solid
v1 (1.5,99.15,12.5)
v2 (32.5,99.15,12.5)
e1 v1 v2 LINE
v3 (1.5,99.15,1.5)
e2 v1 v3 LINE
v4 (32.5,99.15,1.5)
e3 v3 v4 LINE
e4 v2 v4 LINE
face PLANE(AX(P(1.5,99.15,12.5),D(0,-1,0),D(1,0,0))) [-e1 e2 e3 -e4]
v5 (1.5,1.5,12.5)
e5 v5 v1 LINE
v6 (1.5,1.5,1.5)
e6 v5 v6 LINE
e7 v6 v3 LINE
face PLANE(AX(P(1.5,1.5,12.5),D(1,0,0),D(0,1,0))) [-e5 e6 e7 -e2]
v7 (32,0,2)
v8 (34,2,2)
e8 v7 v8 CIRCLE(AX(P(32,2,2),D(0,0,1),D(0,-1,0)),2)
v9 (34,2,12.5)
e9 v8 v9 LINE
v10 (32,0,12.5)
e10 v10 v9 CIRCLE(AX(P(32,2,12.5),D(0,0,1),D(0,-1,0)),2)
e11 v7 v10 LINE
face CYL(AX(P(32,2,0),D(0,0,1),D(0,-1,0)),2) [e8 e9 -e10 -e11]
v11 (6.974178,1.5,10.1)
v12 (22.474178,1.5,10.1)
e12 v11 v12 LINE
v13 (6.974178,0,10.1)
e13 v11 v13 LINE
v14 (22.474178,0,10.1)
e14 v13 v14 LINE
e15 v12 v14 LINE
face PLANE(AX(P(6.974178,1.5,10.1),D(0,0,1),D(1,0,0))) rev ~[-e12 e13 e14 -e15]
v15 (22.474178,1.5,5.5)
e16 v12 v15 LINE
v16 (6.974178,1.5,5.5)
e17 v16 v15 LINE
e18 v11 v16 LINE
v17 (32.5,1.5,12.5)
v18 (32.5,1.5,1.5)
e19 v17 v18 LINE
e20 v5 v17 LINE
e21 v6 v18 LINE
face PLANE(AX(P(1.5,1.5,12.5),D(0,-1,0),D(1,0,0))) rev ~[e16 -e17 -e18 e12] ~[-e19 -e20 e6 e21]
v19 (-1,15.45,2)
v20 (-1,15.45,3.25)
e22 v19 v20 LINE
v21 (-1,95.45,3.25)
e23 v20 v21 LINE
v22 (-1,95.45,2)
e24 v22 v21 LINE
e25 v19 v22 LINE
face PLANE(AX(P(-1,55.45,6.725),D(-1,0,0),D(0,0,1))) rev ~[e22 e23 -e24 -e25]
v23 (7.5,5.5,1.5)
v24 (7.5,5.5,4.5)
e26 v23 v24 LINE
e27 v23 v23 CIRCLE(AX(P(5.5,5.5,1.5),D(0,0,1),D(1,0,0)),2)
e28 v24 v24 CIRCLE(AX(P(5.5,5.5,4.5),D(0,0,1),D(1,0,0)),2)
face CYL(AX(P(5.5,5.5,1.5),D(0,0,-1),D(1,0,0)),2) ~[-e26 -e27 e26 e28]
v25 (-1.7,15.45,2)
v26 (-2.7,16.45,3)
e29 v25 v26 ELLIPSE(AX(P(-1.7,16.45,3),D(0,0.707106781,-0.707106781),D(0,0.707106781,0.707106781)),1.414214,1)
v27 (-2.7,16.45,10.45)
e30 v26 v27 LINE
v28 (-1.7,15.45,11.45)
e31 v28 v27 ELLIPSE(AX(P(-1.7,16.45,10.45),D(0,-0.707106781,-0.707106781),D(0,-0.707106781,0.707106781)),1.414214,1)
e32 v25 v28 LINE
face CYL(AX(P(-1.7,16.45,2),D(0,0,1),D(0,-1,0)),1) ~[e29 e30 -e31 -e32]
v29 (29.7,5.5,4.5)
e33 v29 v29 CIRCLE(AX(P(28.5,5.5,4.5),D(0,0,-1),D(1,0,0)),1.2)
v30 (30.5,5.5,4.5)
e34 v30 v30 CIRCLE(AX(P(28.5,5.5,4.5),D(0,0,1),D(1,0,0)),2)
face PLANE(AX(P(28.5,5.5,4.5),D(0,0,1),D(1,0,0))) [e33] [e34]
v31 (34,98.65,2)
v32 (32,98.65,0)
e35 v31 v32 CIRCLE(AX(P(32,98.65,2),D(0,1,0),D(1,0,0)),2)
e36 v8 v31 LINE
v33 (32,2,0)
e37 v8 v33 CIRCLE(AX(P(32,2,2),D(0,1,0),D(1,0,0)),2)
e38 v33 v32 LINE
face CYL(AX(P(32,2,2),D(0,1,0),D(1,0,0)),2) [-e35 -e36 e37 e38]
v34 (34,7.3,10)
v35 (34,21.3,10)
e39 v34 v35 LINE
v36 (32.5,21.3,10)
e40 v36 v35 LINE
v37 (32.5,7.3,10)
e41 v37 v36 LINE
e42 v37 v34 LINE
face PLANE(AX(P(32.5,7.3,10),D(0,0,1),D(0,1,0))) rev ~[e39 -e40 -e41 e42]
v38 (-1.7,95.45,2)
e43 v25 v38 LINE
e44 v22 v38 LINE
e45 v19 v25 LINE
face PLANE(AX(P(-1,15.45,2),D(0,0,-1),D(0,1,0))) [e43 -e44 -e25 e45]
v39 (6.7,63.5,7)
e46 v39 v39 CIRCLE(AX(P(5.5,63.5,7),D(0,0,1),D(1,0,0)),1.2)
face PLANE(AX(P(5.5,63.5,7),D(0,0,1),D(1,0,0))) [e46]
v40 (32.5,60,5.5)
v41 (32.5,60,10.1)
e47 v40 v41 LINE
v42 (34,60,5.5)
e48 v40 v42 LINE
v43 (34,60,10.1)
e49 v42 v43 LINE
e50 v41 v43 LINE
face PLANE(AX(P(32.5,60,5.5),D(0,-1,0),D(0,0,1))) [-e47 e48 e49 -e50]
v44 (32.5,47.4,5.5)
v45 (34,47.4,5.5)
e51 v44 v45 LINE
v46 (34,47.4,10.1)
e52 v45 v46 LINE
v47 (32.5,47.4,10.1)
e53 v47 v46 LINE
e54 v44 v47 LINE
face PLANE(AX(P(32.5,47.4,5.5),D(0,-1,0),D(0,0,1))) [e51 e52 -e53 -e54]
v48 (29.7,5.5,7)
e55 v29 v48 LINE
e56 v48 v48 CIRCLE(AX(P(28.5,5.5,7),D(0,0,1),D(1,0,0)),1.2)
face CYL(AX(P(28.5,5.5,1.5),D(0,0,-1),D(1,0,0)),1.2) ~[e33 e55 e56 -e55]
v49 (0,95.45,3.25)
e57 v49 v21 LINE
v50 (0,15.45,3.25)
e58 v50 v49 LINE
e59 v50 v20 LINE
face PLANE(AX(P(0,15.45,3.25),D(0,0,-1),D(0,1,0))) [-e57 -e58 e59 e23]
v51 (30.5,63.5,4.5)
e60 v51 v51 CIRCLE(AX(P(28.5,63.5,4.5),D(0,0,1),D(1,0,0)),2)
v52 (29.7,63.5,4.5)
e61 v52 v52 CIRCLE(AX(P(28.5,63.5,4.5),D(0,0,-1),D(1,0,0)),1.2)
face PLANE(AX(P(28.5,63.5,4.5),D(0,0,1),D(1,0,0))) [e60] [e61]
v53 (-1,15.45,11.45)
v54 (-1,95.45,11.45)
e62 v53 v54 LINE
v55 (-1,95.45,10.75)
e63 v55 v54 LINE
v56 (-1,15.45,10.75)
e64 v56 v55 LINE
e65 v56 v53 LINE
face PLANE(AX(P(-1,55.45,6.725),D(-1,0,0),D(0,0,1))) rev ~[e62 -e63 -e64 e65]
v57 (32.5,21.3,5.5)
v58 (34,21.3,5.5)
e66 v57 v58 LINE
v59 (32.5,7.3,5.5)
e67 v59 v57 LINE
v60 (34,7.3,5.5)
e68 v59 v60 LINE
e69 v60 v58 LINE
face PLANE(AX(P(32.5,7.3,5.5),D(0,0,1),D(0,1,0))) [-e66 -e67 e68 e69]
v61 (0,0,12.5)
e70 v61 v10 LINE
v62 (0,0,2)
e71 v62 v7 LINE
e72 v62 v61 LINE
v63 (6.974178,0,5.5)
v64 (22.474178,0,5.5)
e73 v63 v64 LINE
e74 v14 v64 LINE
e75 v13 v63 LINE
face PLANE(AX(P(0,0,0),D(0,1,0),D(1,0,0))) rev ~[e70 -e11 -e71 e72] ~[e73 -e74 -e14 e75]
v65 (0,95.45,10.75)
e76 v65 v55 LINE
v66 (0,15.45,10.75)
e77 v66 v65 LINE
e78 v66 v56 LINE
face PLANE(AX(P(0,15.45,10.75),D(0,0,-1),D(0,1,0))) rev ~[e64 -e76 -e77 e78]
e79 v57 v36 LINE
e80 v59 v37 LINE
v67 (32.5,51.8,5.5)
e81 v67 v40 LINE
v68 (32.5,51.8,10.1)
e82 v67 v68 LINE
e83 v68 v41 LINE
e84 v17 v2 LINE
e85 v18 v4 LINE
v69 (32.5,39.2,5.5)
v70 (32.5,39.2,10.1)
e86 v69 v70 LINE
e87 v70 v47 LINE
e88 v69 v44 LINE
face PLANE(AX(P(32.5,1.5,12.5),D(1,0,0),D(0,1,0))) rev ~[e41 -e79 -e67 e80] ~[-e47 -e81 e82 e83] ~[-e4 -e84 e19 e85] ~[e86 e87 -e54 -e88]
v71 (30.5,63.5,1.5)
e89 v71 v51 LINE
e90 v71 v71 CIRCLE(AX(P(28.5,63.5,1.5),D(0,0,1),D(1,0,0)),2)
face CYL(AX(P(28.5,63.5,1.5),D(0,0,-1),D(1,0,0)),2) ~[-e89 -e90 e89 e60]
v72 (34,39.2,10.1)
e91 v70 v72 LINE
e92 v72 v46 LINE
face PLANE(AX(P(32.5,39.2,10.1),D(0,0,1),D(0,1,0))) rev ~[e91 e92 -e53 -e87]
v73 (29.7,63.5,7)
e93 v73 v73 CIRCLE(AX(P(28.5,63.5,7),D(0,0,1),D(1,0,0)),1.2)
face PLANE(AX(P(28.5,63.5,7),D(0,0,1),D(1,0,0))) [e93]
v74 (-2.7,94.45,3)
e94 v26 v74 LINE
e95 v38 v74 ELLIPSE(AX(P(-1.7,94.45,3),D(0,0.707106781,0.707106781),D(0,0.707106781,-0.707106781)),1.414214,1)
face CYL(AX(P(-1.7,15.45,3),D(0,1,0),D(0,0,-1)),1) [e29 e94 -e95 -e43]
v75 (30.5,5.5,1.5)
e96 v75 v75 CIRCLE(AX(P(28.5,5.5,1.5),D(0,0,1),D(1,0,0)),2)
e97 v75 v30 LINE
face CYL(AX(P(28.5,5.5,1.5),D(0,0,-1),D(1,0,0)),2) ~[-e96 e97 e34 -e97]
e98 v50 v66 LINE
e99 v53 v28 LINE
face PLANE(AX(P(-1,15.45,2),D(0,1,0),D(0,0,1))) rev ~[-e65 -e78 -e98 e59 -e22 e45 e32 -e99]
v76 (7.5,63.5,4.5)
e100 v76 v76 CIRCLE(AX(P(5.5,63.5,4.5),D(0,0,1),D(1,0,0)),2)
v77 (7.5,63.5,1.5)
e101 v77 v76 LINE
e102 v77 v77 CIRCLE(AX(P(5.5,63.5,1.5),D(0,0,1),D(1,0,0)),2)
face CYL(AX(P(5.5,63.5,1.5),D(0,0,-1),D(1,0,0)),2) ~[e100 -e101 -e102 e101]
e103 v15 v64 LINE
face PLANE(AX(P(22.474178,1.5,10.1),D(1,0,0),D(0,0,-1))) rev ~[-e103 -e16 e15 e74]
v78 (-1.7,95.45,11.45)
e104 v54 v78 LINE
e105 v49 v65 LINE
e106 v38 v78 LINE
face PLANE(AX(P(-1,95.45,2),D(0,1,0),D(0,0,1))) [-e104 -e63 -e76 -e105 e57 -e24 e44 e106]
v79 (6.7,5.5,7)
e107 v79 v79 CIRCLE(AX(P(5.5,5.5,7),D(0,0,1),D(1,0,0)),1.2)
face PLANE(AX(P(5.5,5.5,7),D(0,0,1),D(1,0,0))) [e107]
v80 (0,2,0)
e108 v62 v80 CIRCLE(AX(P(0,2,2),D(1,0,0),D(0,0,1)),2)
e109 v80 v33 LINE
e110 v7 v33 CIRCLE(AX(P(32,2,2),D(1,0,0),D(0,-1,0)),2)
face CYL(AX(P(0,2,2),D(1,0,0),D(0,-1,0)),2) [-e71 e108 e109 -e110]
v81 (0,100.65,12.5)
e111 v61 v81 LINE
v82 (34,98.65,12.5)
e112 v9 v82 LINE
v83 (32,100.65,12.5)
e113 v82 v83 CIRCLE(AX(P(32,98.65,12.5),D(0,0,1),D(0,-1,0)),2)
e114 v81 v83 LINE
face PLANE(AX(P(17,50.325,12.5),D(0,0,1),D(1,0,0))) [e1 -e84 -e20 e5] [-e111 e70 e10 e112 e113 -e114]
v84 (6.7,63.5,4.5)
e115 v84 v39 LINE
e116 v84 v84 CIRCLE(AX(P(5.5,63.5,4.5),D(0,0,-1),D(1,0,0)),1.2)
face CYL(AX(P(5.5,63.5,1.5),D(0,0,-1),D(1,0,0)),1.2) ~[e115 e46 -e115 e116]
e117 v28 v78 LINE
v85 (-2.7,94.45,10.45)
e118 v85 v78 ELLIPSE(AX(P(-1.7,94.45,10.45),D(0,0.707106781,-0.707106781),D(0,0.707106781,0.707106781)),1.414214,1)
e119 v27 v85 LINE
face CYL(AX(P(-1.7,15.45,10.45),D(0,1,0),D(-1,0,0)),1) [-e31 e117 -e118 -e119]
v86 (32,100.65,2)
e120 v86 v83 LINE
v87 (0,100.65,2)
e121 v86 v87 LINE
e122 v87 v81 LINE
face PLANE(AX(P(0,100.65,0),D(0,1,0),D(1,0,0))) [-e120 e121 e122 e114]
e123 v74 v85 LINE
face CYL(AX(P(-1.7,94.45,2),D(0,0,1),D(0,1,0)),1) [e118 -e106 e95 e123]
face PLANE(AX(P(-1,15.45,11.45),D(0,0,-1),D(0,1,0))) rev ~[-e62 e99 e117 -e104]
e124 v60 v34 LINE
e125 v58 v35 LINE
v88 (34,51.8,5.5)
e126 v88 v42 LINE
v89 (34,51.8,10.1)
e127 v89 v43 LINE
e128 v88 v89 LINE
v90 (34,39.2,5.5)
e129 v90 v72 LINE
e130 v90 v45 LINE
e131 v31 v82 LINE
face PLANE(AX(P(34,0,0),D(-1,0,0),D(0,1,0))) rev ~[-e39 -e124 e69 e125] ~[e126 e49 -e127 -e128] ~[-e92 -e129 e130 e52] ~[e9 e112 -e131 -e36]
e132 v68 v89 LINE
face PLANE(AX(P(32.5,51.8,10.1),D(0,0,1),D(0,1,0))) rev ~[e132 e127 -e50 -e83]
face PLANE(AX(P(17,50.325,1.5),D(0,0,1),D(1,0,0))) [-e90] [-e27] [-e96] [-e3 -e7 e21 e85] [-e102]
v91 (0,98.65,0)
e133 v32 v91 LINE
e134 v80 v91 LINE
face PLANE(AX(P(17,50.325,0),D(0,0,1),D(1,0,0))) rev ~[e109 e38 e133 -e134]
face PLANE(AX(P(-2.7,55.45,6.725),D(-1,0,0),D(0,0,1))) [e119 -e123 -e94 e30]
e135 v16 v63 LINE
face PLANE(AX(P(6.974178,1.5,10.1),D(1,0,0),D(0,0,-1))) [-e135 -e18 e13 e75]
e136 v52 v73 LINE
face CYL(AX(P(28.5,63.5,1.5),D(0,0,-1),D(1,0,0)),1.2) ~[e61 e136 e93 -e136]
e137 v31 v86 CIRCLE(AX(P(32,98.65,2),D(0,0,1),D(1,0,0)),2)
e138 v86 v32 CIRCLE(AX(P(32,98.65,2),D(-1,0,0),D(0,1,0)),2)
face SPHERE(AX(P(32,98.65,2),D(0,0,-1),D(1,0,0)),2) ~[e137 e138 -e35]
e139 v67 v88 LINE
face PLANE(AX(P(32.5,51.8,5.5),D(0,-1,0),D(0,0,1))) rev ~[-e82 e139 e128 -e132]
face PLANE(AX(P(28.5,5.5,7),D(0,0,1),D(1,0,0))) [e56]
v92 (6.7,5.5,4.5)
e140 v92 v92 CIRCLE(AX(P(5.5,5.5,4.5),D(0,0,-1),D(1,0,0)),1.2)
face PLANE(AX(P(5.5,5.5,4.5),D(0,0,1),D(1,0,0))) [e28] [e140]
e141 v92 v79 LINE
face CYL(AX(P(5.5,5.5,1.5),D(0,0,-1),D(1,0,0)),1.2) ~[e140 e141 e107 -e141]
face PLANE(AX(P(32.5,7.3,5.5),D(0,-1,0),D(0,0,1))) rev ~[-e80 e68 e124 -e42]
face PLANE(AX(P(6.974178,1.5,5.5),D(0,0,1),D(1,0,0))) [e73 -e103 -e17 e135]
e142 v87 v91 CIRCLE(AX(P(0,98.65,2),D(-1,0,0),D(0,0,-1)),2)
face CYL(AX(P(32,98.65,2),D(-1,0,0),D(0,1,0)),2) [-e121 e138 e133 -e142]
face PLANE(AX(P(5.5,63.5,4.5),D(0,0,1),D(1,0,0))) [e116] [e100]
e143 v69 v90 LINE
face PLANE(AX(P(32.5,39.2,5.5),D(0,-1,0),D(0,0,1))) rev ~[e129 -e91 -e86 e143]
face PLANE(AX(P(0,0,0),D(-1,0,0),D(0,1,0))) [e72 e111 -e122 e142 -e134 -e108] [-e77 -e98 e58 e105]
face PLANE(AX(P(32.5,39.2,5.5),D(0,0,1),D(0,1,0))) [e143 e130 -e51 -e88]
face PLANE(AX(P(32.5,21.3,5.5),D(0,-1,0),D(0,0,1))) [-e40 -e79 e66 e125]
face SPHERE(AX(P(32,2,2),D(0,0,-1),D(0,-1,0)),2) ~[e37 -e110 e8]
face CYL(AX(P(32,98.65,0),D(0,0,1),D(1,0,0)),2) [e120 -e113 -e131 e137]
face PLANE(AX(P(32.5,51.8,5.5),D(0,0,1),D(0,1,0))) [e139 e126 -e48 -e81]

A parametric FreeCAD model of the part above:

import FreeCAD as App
import Part
import Sketcher


def edges_at(feature, points):
    """Names of the edges that pass closest to the given points."""
    edges = feature.Shape.Edges
    near = lambda p: min(range(len(edges)), key=lambda i: edges[i].distToShape(Part.Vertex(*p))[0])
    return sorted({f"Edge{near(p) + 1}" for p in points})


def add_polygon(sketch, points):
    """Adds a closed chain of lines whose ends are joined by coincident constraints."""
    first, n = sketch.GeometryCount, len(points)
    for a, b in zip(points, points[1:] + points[:1]):
        sketch.addGeometry(Part.LineSegment(App.Vector(*a, 0), App.Vector(*b, 0)), False)
    for i in range(n):
        sketch.addConstraint(Sketcher.Constraint("Coincident", first + i, 2, first + (i + 1) % n, 1))

doc = App.newDocument("Part")
body = doc.addObject("PartDesign::Body", "Body")

# Sketch on XY plane
sketch1 = doc.addObject("Sketcher::SketchObject", "Sketch")
body.addObject(sketch1)
sketch1.AttachmentSupport = (doc.XY_Plane, [""])
sketch1.MapMode = "FlatFace"
add_polygon(sketch1, [(0, 100.65), (0, 0), (34, 0), (34, 100.65)])  # lines 0-3
sketch1.addConstraint([
    Sketcher.Constraint("Vertical", 0),
    Sketcher.Constraint("Horizontal", 1),
    Sketcher.Constraint("Vertical", 2),
    Sketcher.Constraint("Horizontal", 3),
    Sketcher.Constraint("Coincident", 0, 2, -1, 1),
    Sketcher.Constraint("DistanceX", 1, 1, 1, 2, 34.0),
    Sketcher.Constraint("DistanceY", 0, 2, 0, 1, 100.65),
])
pad1 = doc.addObject("PartDesign::Pad", "Pad")
body.addObject(pad1)
pad1.Profile = sketch1
pad1.Length = 12.5

# Sketch on XY plane
sketch2 = doc.addObject("Sketcher::SketchObject", "Sketch001")
body.addObject(sketch2)
sketch2.AttachmentSupport = (doc.XY_Plane, [""])
sketch2.MapMode = "FlatFace"
sketch2.AttachmentOffset = App.Placement(App.Vector(0, 0, 12.5), App.Rotation())
add_polygon(sketch2, [(1.5, 99.15), (1.5, 1.5), (32.5, 1.5), (32.5, 99.15)])  # lines 0-3
sketch2.addConstraint([
    Sketcher.Constraint("Vertical", 0),
    Sketcher.Constraint("Horizontal", 1),
    Sketcher.Constraint("Vertical", 2),
    Sketcher.Constraint("Horizontal", 3),
    Sketcher.Constraint("DistanceX", 1, 1, 1, 2, 31.0),
    Sketcher.Constraint("DistanceY", 0, 2, 0, 1, 97.65),
    Sketcher.Constraint("DistanceX", -1, 1, 0, 2, 1.5),
    Sketcher.Constraint("DistanceY", -1, 1, 0, 2, 1.5),
])
pocket1 = doc.addObject("PartDesign::Pocket", "Pocket")
body.addObject(pocket1)
pocket1.Profile = sketch2
pocket1.Length = 11

# Sketch on XY plane
sketch3 = doc.addObject("Sketcher::SketchObject", "Sketch002")
body.addObject(sketch3)
sketch3.AttachmentSupport = (doc.XY_Plane, [""])
sketch3.MapMode = "FlatFace"
sketch3.AttachmentOffset = App.Placement(App.Vector(0, 0, 1.5), App.Rotation())
sketch3.addGeometry([
    Part.Circle(App.Vector(5.5, 63.5, 0), App.Vector(0, 0, 1), 2),
    Part.Circle(App.Vector(28.5, 63.5, 0), App.Vector(0, 0, 1), 2),
    Part.Circle(App.Vector(5.5, 5.5, 0), App.Vector(0, 0, 1), 2),
    Part.Circle(App.Vector(28.5, 5.5, 0), App.Vector(0, 0, 1), 2),
], False)
sketch3.addConstraint([
    Sketcher.Constraint("Equal", 0, 1),
    Sketcher.Constraint("Equal", 1, 2),
    Sketcher.Constraint("Equal", 2, 3),
    Sketcher.Constraint("Horizontal", 0, 3, 1, 3),
    Sketcher.Constraint("Horizontal", 2, 3, 3, 3),
    Sketcher.Constraint("Vertical", 0, 3, 2, 3),
    Sketcher.Constraint("Vertical", 1, 3, 3, 3),
    Sketcher.Constraint("Diameter", 0, 4.0),
    Sketcher.Constraint("DistanceX", 0, 3, 1, 3, 23.0),
    Sketcher.Constraint("DistanceY", 2, 3, 0, 3, 58.0),
    Sketcher.Constraint("DistanceX", -1, 1, 0, 3, 5.5),
    Sketcher.Constraint("DistanceY", -1, 1, 0, 3, 63.5),
])
pad2 = doc.addObject("PartDesign::Pad", "Pad001")
body.addObject(pad2)
pad2.Profile = sketch3
pad2.Length = 3

# Sketch on XY plane
sketch4 = doc.addObject("Sketcher::SketchObject", "Sketch003")
body.addObject(sketch4)
sketch4.AttachmentSupport = (doc.XY_Plane, [""])
sketch4.MapMode = "FlatFace"
sketch4.AttachmentOffset = App.Placement(App.Vector(0, 0, 1.5), App.Rotation())
sketch4.addGeometry([
    Part.Circle(App.Vector(5.5, 63.5, 0), App.Vector(0, 0, 1), 1.2),
    Part.Circle(App.Vector(28.5, 63.5, 0), App.Vector(0, 0, 1), 1.2),
    Part.Circle(App.Vector(5.5, 5.5, 0), App.Vector(0, 0, 1), 1.2),
    Part.Circle(App.Vector(28.5, 5.5, 0), App.Vector(0, 0, 1), 1.2),
], False)
sketch4.addConstraint([
    Sketcher.Constraint("Equal", 0, 1),
    Sketcher.Constraint("Equal", 1, 2),
    Sketcher.Constraint("Equal", 2, 3),
    Sketcher.Constraint("Horizontal", 0, 3, 1, 3),
    Sketcher.Constraint("Horizontal", 2, 3, 3, 3),
    Sketcher.Constraint("Vertical", 0, 3, 2, 3),
    Sketcher.Constraint("Vertical", 1, 3, 3, 3),
    Sketcher.Constraint("Diameter", 0, 2.4),
    Sketcher.Constraint("DistanceX", 0, 3, 1, 3, 23.0),
    Sketcher.Constraint("DistanceY", 2, 3, 0, 3, 58.0),
    Sketcher.Constraint("DistanceX", -1, 1, 0, 3, 5.5),
    Sketcher.Constraint("DistanceY", -1, 1, 0, 3, 63.5),
])
pad3 = doc.addObject("PartDesign::Pad", "Pad002")
body.addObject(pad3)
pad3.Profile = sketch4
pad3.Length = 5.5
doc.recompute()

fillet = doc.addObject("PartDesign::Fillet", "Fillet")
body.addObject(fillet)
fillet.Base = (pad3, edges_at(pad3, [(34, 0, 6.25)]))
fillet.Radius = 2
doc.recompute()

fillet2 = doc.addObject("PartDesign::Fillet", "Fillet001")
body.addObject(fillet2)
fillet2.Base = (fillet, edges_at(fillet, [(34, 100.65, 6.25)]))
fillet2.Radius = 2
doc.recompute()

fillet3 = doc.addObject("PartDesign::Fillet", "Fillet002")
body.addObject(fillet3)
fillet3.Base = (fillet2, edges_at(fillet2, [
    (16, 0, 0),
    (34, 50.325, 0),
    (33.414, 0.586, 0),
    (16, 100.65, 0),
    (33.414, 100.064, 0),
]))
fillet3.Radius = 2

# Sketch on YZ plane
sketch5 = doc.addObject("Sketcher::SketchObject", "Sketch004")
body.addObject(sketch5)
sketch5.AttachmentSupport = (doc.YZ_Plane, [""])
sketch5.MapMode = "FlatFace"
add_polygon(sketch5, [(95.45, 3.25), (15.45, 3.25), (15.45, 10.75), (95.45, 10.75)])  # lines 0-3
sketch5.addConstraint([
    Sketcher.Constraint("Horizontal", 0),
    Sketcher.Constraint("Vertical", 1),
    Sketcher.Constraint("Horizontal", 2),
    Sketcher.Constraint("Vertical", 3),
    Sketcher.Constraint("DistanceX", 0, 2, 0, 1, 80.0),
    Sketcher.Constraint("DistanceY", 1, 1, 1, 2, 7.5),
    Sketcher.Constraint("DistanceX", -1, 1, 0, 2, 15.45),
    Sketcher.Constraint("DistanceY", -1, 1, 0, 2, 3.25),
])
pad4 = doc.addObject("PartDesign::Pad", "Pad003")
body.addObject(pad4)
pad4.Profile = sketch5
pad4.Length = 1
pad4.Reversed = True

# Sketch on YZ plane
sketch6 = doc.addObject("Sketcher::SketchObject", "Sketch005")
body.addObject(sketch6)
sketch6.AttachmentSupport = (doc.YZ_Plane, [""])
sketch6.MapMode = "FlatFace"
sketch6.AttachmentOffset = App.Placement(App.Vector(0, 0, -1), App.Rotation())
add_polygon(sketch6, [(95.45, 2), (15.45, 2), (15.45, 11.45), (95.45, 11.45)])  # lines 0-3
sketch6.addConstraint([
    Sketcher.Constraint("Horizontal", 0),
    Sketcher.Constraint("Vertical", 1),
    Sketcher.Constraint("Horizontal", 2),
    Sketcher.Constraint("Vertical", 3),
    Sketcher.Constraint("DistanceX", 0, 2, 0, 1, 80.0),
    Sketcher.Constraint("DistanceY", -1, 1, 0, 2, 2.0),
    Sketcher.Constraint("DistanceY", 1, 1, 1, 2, 9.45),
    Sketcher.Constraint("DistanceX", -1, 1, 0, 2, 15.45),
])
pad5 = doc.addObject("PartDesign::Pad", "Pad004")
body.addObject(pad5)
pad5.Profile = sketch6
pad5.Length = 1.7
pad5.Reversed = True

# Sketch on YZ plane
sketch7 = doc.addObject("Sketcher::SketchObject", "Sketch006")
body.addObject(sketch7)
sketch7.AttachmentSupport = (doc.YZ_Plane, [""])
sketch7.MapMode = "FlatFace"
sketch7.AttachmentOffset = App.Placement(App.Vector(0, 0, 32.5), App.Rotation())
add_polygon(sketch7, [(60, 5.5), (51.8, 5.5), (51.8, 10.1), (60, 10.1)])  # lines 0-3
add_polygon(sketch7, [(47.4, 5.5), (39.2, 5.5), (39.2, 10.1), (47.4, 10.1)])  # lines 4-7
add_polygon(sketch7, [(21.3, 5.5), (7.3, 5.5), (7.3, 10), (21.3, 10)])  # lines 8-11
sketch7.addConstraint([
    Sketcher.Constraint("Horizontal", 0),
    Sketcher.Constraint("Vertical", 1),
    Sketcher.Constraint("Horizontal", 2),
    Sketcher.Constraint("Vertical", 3),
    Sketcher.Constraint("Horizontal", 4),
    Sketcher.Constraint("Vertical", 5),
    Sketcher.Constraint("Horizontal", 6),
    Sketcher.Constraint("Vertical", 7),
    Sketcher.Constraint("Horizontal", 8),
    Sketcher.Constraint("Vertical", 9),
    Sketcher.Constraint("Horizontal", 10),
    Sketcher.Constraint("Vertical", 11),
    Sketcher.Constraint("Horizontal", 3, 2, 4, 2),
    Sketcher.Constraint("Horizontal", 2, 2, 5, 2),
    Sketcher.Constraint("Horizontal", 7, 2, 8, 2),
    Sketcher.Constraint("Equal", 2, 4),
    Sketcher.Constraint("DistanceX", 8, 2, 8, 1, 14.0),
    Sketcher.Constraint("DistanceX", 0, 2, 0, 1, 8.2),
    Sketcher.Constraint("DistanceY", 1, 1, 1, 2, 4.6),
    Sketcher.Constraint("DistanceY", 9, 1, 9, 2, 4.5),
    Sketcher.Constraint("DistanceX", -1, 1, 2, 2, 60.0),
    Sketcher.Constraint("DistanceY", -1, 1, 9, 2, 10.0),
    Sketcher.Constraint("DistanceX", -1, 1, 4, 2, 39.2),
    Sketcher.Constraint("DistanceX", -1, 1, 8, 2, 7.3),
])
pocket2 = doc.addObject("PartDesign::Pocket", "Pocket001")
body.addObject(pocket2)
pocket2.Profile = sketch7
pocket2.Length = 3
pocket2.Reversed = True

# Sketch on XZ plane
sketch8 = doc.addObject("Sketcher::SketchObject", "Sketch007")
body.addObject(sketch8)
sketch8.AttachmentSupport = (doc.XZ_Plane, [""])
sketch8.MapMode = "FlatFace"
sketch8.AttachmentOffset = App.Placement(App.Vector(0, 0, -1.5), App.Rotation())
add_polygon(sketch8, [(6.974178, 5.5), (6.974178, 10.1), (22.474178, 10.1), (22.474178, 5.5)])  # lines 0-3
sketch8.addConstraint([
    Sketcher.Constraint("Vertical", 0),
    Sketcher.Constraint("Horizontal", 1),
    Sketcher.Constraint("Vertical", 2),
    Sketcher.Constraint("Horizontal", 3),
    Sketcher.Constraint("DistanceX", 1, 1, 1, 2, 15.5),
    Sketcher.Constraint("DistanceY", 0, 1, 0, 2, 4.6),
    Sketcher.Constraint("DistanceY", -1, 1, 0, 2, 10.1),
    Sketcher.Constraint("DistanceX", -1, 1, 0, 2, 6.974178),
])
pocket3 = doc.addObject("PartDesign::Pocket", "Pocket002")
body.addObject(pocket3)
pocket3.Profile = sketch8
pocket3.Length = 3
pocket3.Reversed = True
doc.recompute()

fillet4 = doc.addObject("PartDesign::Fillet", "Fillet003")
body.addObject(fillet4)
fillet4.Base = (pocket3, edges_at(pocket3, [
    (-2.7, 55.45, 2),
    (-2.7, 15.45, 6.725),
    (-2.7, 55.45, 11.45),
    (-2.7, 95.45, 6.725),
]))
fillet4.Radius = 1

doc.recompute()
